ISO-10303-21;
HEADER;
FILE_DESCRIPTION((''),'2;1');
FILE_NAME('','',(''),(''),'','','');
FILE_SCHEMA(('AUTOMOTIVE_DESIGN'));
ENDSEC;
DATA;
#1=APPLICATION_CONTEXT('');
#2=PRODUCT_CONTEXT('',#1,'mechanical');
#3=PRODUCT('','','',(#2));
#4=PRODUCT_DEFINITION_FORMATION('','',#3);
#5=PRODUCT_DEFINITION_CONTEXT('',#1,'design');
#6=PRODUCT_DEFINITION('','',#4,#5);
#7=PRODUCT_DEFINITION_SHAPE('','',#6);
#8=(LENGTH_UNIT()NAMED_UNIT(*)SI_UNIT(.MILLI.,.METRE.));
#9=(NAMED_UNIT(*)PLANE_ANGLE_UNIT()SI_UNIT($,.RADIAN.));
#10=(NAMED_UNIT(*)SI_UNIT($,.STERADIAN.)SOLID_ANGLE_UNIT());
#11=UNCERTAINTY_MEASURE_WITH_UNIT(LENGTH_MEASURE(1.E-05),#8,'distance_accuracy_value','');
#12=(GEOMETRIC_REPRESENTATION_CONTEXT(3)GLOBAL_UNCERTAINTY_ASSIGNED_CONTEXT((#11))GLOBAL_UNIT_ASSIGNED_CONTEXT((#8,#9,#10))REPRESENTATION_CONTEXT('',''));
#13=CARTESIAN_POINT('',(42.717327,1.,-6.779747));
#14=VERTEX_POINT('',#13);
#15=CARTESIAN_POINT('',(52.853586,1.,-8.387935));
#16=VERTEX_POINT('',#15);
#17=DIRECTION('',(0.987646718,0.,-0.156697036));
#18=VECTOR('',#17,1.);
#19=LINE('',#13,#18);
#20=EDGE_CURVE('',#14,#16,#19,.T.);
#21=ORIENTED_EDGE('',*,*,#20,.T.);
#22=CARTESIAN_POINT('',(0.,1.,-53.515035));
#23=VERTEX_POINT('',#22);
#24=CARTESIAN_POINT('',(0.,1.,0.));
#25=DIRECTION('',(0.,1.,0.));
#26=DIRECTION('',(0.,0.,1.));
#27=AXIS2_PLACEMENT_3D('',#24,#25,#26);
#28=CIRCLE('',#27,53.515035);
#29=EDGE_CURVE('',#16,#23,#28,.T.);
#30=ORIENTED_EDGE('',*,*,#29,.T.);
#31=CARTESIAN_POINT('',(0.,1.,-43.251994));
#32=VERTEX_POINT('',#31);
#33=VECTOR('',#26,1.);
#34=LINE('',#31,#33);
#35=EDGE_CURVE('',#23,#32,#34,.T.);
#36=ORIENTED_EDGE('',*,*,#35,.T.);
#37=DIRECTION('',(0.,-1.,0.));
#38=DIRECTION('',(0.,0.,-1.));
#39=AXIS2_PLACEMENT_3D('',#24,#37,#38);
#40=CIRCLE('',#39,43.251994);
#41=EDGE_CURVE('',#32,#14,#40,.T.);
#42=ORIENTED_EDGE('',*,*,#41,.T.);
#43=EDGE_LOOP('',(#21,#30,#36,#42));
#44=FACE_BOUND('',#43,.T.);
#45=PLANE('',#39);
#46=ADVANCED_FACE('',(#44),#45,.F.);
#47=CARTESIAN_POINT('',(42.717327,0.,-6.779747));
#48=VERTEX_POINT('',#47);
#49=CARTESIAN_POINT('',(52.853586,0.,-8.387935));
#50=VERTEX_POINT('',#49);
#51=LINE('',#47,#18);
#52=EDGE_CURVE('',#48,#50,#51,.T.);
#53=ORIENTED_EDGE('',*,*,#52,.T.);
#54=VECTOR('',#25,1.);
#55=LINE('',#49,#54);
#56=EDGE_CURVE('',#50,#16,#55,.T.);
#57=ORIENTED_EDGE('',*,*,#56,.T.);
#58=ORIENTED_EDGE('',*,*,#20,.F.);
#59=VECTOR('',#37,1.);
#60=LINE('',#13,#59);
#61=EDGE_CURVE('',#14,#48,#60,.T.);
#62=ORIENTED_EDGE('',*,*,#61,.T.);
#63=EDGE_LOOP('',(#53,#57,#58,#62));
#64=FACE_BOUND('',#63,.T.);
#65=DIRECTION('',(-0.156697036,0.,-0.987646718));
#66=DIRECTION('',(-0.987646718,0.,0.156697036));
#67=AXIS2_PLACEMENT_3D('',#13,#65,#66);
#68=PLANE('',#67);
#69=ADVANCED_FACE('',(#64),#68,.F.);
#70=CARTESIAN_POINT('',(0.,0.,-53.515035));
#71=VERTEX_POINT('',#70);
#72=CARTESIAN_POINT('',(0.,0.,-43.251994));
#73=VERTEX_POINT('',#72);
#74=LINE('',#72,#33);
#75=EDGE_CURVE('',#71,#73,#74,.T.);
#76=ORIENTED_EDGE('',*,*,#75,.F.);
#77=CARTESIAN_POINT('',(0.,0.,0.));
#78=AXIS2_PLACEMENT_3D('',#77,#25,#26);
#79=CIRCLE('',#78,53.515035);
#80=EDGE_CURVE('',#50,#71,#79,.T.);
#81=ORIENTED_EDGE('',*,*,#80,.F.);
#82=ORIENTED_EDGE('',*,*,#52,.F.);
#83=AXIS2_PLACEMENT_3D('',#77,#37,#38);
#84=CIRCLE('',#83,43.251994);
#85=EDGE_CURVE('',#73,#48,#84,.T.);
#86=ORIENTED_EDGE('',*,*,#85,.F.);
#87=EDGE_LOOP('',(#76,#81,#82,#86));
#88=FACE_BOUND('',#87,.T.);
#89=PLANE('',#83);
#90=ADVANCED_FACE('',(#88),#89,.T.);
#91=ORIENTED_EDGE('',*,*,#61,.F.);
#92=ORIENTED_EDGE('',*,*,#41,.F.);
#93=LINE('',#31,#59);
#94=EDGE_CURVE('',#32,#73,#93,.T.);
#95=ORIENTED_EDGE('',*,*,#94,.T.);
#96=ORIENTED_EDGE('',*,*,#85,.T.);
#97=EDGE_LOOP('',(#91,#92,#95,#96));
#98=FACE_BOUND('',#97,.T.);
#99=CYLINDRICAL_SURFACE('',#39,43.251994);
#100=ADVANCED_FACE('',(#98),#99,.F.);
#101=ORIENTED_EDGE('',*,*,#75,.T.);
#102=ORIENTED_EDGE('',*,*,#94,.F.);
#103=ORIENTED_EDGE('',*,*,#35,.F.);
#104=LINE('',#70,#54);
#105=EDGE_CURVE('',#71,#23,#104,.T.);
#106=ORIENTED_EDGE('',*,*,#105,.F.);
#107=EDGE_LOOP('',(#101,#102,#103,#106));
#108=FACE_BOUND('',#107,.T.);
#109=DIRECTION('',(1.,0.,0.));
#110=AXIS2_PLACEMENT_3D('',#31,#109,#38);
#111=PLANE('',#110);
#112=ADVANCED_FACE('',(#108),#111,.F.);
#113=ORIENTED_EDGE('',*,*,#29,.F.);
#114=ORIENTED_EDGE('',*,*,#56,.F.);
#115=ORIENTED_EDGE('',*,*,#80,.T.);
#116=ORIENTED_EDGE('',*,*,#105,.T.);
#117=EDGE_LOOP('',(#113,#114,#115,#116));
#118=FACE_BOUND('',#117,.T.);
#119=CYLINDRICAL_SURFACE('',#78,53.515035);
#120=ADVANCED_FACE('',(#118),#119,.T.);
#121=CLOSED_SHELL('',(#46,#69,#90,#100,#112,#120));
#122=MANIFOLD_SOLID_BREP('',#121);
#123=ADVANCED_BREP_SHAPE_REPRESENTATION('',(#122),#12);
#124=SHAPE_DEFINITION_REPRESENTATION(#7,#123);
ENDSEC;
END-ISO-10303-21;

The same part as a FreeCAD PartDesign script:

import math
import FreeCAD as App
import Part
import Sketcher

V = App.Vector

doc = App.newDocument("Part")
params = doc.addObject("Spreadsheet::Sheet", "Params")
for row, (alias, value) in enumerate([
    ("pad1_length", "1 mm"),
], start=1):
    params.set(f"A{row}", alias)
    params.set(f"B{row}", "=" + value)
    params.setAlias(f"B{row}", alias)

body = doc.addObject("PartDesign::Body", "Body")

sketch1 = body.newObject("Sketcher::SketchObject", "Sketch")
sketch1.AttachmentSupport = (doc.getObject("XZ_Plane"), [""])
sketch1.MapMode = "FlatFace"
sketch1.addGeometry([
    Part.LineSegment(V(0, -56, 0), V(0, -43, 0)),
    Part.ArcOfCircle(Part.Circle(V(0, 0, 0), V(0, 0, 1), 43), math.radians(-90), math.radians(-9)),
    Part.LineSegment(V(43, -7, 0), V(55, -9, 0)),
    Part.ArcOfCircle(Part.Circle(V(0, 0, 0), V(0, 0, 1), 56), math.radians(-90), math.radians(-9)),
], False)
sketch1.addConstraint([
    Sketcher.Constraint("Coincident", 0, 2, 1, 1),
    Sketcher.Constraint("Coincident", 1, 2, 2, 1),
    Sketcher.Constraint("Coincident", 2, 2, 3, 2),
    Sketcher.Constraint("Coincident", 3, 1, 0, 1),
    Sketcher.Constraint("Vertical", 0),
    Sketcher.Constraint("Coincident", 1, 3, -1, 1),
    Sketcher.Constraint("Coincident", 3, 3, -1, 1),
    Sketcher.Constraint("PointOnObject", 0, 2, -2),
    Sketcher.Constraint("Radius", 1, 43.251994),
    Sketcher.Constraint("Radius", 3, 55.567644),
    Sketcher.Constraint("DistanceX", 1, 2, 2, 2, 12.163511),
    Sketcher.Constraint("DistanceY", 0, 2, 2, 2, 34.542421),
])
pad1 = body.newObject("PartDesign::Pad", "Pad")
pad1.Profile = sketch1
pad1.setExpression("Length", "Params.pad1_length")
pad1.Reversed = True

sketch2 = body.newObject("Sketcher::SketchObject", "Sketch001")
sketch2.AttachmentSupport = (doc.getObject("XZ_Plane"), [""])
sketch2.MapMode = "FlatFace"
sketch2.AttachmentOffset = App.Placement(V(0, 0, -1), App.Rotation())
sketch2.addGeometry([
    Part.ArcOfCircle(Part.Circle(V(0, 0, 0), V(0, 0, 1), 53.5), math.radians(-90), math.radians(-9)),
    Part.LineSegment(V(52.9, -8.4, 0), V(54.9, -8.7, 0)),
    Part.ArcOfCircle(Part.Circle(V(0, 0, 0), V(0, 0, 1), 55.6), math.radians(-90), math.radians(-9)),
    Part.LineSegment(V(0, -55.6, 0), V(0, -53.5, 0)),
], False)
sketch2.addConstraint([
    Sketcher.Constraint("Coincident", 0, 2, 1, 1),
    Sketcher.Constraint("Coincident", 1, 2, 2, 2),
    Sketcher.Constraint("Coincident", 2, 1, 3, 1),
    Sketcher.Constraint("Coincident", 3, 2, 0, 1),
    Sketcher.Constraint("Vertical", 3),
    Sketcher.Constraint("Coincident", 0, 3, -1, 1),
    Sketcher.Constraint("Coincident", 2, 3, -1, 1),
    Sketcher.Constraint("PointOnObject", 2, 1, -2),
    Sketcher.Constraint("Radius", 0, 53.515035),
    Sketcher.Constraint("Radius", 2, 55.567644),
    Sketcher.Constraint("DistanceY", 3, 2, 0, 2, 45.1271),
    Sketcher.Constraint("DistanceX", 0, 2, 1, 2, 2.027252),
])
pocket1 = body.newObject("PartDesign::Pocket", "Pocket")
pocket1.Profile = sketch2
pocket1.Type = "ThroughAll"
pocket1.Reversed = True

doc.recompute()
